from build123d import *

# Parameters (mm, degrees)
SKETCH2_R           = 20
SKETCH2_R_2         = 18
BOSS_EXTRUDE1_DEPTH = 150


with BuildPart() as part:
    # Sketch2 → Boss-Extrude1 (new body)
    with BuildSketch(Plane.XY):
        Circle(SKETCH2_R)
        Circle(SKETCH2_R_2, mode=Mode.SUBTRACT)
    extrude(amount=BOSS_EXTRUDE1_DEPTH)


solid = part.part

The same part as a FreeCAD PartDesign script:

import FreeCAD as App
import Part
import Sketcher
Q = App.Units.Quantity

doc = App.newDocument("Part")
body = doc.addObject("PartDesign::Body", "Body")

sketch1 = doc.addObject("Sketcher::SketchObject", "Sketch")
body.addObject(sketch1)
sketch1.AttachmentSupport = (doc.XY_Plane, [""])
sketch1.MapMode = "FlatFace"
sketch1.addGeometry(Part.Circle(App.Vector(0, 0, 0), App.Vector(0, 0, 1), 20), False)
sketch1.addGeometry(Part.Circle(App.Vector(0, 0, 0), App.Vector(0, 0, 1), 18), False)
sketch1.addConstraint(Sketcher.Constraint("Coincident", 0, 3, -1, 1))
sketch1.addConstraint(Sketcher.Constraint("Coincident", 1, 3, -1, 1))
sketch1.addConstraint(Sketcher.Constraint("Diameter", 0, Q("40 mm")))
sketch1.addConstraint(Sketcher.Constraint("Diameter", 1, Q("36 mm")))
pad1 = doc.addObject("PartDesign::Pad", "Pad")
body.addObject(pad1)
pad1.Profile = sketch1
pad1.Length = 150

doc.recompute()
